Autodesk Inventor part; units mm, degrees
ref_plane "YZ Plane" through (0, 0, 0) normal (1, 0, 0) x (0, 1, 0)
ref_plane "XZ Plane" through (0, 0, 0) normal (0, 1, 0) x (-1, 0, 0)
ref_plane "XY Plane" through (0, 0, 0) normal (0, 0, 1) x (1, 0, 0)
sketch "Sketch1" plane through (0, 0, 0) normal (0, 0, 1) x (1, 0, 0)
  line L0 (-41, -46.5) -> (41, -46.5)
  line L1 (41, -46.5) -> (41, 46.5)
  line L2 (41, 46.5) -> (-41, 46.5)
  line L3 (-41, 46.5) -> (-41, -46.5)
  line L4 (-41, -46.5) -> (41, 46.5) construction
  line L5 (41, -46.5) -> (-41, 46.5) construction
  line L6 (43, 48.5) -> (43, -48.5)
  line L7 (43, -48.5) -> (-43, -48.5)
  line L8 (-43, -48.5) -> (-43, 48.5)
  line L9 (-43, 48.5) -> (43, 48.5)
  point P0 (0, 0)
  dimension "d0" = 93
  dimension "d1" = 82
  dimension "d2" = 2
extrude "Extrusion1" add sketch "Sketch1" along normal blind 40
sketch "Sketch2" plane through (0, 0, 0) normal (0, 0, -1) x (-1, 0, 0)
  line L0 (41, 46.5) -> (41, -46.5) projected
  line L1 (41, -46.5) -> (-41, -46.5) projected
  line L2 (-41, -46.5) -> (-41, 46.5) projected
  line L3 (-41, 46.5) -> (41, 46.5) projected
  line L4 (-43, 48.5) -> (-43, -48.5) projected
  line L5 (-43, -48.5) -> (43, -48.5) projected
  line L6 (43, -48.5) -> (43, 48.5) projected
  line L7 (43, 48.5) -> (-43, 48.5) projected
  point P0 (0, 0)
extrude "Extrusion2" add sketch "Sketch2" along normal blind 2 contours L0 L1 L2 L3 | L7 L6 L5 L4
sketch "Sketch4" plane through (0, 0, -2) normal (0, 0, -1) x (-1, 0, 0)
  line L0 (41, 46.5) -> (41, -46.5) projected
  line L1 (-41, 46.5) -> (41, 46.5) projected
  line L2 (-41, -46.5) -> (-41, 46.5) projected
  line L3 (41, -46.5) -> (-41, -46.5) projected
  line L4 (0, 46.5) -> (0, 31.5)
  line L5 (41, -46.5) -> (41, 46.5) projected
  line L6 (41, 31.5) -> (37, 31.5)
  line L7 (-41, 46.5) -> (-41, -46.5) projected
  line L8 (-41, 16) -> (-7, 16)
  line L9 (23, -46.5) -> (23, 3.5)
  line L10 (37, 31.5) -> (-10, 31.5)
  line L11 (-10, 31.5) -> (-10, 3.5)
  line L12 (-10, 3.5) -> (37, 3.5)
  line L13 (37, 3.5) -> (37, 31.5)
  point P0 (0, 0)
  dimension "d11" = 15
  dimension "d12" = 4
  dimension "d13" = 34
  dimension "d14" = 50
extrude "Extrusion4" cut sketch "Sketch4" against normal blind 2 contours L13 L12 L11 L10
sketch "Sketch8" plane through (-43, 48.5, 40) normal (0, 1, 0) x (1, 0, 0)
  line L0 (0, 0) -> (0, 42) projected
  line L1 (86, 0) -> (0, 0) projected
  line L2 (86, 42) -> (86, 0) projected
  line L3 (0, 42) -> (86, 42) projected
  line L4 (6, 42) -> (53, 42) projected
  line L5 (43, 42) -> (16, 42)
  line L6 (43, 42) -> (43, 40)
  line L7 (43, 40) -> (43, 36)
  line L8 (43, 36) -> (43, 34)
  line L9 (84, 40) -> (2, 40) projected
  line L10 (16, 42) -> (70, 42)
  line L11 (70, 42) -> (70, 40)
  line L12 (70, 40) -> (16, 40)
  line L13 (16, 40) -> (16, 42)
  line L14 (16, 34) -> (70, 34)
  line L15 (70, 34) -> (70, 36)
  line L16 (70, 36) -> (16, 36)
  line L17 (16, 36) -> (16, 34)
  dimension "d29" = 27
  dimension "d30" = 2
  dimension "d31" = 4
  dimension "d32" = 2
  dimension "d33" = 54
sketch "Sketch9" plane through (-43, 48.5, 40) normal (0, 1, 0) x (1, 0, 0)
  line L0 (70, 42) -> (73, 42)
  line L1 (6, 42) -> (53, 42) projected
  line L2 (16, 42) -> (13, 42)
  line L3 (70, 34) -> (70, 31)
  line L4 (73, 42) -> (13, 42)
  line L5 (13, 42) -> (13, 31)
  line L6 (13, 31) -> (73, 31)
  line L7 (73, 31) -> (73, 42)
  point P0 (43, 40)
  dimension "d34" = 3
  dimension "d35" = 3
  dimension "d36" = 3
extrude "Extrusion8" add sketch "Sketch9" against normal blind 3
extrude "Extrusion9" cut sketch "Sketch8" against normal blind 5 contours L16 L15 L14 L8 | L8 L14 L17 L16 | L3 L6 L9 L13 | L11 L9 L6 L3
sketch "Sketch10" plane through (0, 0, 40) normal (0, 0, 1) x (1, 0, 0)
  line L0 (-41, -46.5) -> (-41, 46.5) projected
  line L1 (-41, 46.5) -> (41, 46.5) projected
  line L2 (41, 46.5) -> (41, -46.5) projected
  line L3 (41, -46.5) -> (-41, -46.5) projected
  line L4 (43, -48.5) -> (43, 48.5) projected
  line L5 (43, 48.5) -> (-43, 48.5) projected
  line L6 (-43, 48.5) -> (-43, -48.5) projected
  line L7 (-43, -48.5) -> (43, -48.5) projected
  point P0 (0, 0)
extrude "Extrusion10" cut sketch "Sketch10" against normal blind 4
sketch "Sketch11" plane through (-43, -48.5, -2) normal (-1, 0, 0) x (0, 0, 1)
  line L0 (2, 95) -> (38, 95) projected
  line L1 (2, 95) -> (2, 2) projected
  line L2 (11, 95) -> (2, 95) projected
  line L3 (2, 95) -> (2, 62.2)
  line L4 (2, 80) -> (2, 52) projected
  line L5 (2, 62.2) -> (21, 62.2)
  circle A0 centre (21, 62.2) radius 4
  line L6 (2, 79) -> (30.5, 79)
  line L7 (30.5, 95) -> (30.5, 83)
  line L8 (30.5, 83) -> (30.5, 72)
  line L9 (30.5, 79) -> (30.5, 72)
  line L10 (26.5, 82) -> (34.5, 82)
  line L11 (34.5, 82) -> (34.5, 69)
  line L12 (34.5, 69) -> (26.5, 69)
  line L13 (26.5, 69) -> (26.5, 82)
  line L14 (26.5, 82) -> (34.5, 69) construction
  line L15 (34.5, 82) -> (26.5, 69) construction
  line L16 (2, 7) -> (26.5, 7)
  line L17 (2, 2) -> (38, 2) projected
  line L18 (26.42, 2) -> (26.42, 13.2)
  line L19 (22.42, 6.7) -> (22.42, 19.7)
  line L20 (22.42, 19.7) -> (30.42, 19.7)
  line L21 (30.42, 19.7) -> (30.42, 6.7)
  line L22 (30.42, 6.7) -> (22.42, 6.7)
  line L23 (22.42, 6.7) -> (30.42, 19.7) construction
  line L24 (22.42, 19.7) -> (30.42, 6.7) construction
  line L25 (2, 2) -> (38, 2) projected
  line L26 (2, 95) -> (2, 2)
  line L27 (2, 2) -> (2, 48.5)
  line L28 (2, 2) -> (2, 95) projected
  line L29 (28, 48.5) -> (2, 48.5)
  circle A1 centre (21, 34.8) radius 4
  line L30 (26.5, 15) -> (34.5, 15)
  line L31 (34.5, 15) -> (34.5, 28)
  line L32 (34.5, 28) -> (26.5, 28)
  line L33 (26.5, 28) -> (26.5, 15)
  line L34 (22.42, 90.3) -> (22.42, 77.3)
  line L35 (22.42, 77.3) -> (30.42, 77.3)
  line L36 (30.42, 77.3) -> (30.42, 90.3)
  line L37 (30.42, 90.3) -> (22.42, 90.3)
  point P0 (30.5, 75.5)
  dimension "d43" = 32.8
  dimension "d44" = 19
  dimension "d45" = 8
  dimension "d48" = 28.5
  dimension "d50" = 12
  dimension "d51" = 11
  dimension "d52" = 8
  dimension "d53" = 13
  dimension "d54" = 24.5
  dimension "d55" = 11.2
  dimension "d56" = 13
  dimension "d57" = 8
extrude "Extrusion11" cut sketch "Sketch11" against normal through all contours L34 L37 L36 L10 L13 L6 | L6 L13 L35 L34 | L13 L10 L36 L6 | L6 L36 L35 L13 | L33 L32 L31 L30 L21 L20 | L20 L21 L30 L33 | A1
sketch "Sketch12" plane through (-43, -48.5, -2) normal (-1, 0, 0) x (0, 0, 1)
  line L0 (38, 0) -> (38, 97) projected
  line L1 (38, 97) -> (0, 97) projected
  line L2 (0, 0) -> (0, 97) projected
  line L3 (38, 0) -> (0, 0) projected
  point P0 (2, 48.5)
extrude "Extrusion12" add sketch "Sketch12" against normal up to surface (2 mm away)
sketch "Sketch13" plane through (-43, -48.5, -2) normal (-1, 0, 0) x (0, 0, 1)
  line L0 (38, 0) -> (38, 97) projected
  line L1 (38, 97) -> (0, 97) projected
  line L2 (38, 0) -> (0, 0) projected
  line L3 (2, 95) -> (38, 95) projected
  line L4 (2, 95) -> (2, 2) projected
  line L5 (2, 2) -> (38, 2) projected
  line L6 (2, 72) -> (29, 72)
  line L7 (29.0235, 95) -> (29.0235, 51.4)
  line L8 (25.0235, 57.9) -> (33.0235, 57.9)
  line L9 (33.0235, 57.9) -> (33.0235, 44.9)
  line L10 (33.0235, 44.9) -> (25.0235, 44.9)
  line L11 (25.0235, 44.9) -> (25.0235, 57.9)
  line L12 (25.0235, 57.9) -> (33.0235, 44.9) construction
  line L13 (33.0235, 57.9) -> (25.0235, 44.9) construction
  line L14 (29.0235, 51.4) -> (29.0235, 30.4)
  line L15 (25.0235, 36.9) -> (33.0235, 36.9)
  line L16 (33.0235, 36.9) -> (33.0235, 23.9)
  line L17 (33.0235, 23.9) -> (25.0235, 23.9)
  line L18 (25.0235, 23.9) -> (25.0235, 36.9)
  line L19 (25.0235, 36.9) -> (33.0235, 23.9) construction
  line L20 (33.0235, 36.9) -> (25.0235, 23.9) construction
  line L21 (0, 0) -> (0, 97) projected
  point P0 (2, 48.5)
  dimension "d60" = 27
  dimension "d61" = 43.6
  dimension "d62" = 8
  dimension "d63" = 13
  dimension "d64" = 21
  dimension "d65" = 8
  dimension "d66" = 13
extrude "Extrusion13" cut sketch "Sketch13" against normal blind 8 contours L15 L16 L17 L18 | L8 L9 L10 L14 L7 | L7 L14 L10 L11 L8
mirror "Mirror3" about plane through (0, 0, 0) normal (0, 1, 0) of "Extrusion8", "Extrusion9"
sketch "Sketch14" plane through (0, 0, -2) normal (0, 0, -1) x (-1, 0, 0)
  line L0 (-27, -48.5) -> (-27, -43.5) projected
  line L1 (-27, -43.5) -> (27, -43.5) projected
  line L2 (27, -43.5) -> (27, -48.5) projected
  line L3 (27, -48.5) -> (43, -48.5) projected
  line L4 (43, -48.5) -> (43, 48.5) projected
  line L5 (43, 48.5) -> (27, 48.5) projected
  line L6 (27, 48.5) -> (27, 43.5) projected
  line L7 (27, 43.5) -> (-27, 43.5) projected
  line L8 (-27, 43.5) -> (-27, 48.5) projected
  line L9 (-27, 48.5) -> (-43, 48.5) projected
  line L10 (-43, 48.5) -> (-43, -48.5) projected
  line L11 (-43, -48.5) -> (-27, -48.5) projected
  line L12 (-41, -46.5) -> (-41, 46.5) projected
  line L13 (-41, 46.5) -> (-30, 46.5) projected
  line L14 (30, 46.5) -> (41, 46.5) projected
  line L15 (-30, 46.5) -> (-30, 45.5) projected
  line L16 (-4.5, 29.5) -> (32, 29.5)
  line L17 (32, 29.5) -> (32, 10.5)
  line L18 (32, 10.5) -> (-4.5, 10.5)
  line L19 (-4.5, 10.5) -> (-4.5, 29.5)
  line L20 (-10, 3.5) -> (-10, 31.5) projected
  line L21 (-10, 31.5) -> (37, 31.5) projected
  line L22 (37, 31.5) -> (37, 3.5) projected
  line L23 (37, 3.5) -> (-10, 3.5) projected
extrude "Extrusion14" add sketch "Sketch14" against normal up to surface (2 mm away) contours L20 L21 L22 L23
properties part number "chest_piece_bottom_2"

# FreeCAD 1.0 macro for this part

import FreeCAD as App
import Part
import Sketcher


def add_polygon(sketch, points):
    """Adds a closed chain of lines whose ends are joined by coincident constraints."""
    first, n = sketch.GeometryCount, len(points)
    for a, b in zip(points, points[1:] + points[:1]):
        sketch.addGeometry(Part.LineSegment(App.Vector(*a, 0), App.Vector(*b, 0)), False)
    for i in range(n):
        sketch.addConstraint(Sketcher.Constraint("Coincident", first + i, 2, first + (i + 1) % n, 1))

doc = App.newDocument("Part")
params = doc.addObject("Spreadsheet::Sheet", "Params")
for row, (alias, value) in enumerate([
    ("sketch1_width", "82 mm"),
    ("sketch1_height", "93 mm"),
    ("pad1_length", "40 mm"),
    ("sketch2_width", "86 mm"),
    ("sketch2_height", "97 mm"),
    ("pad2_length", "2 mm"),
    ("sketch3_width", "47 mm"),
    ("sketch3_height", "28 mm"),
    ("pocket1_length", "2 mm"),
    ("sketch4_width", "60 mm"),
    ("sketch4_height", "11 mm"),
    ("pad3_length", "3 mm"),
    ("sketch5_width", "54 mm"),
    ("sketch5_height", "2 mm"),
    ("pocket2_length", "5 mm"),
    ("sketch6_width", "86 mm"),
    ("sketch6_width2", "82 mm"),
    ("sketch6_height", "97 mm"),
    ("sketch6_height2", "93 mm"),
    ("pocket3_length", "4 mm"),
    ("sketch7_diameter", "8 mm"),
    ("sketch7_width", "13 mm"),
    ("sketch7_height", "8 mm"),
    ("sketch8_width", "97 mm"),
    ("sketch8_height", "38 mm"),
    ("pad4_length", "2 mm"),
    ("sketch9_width", "13 mm"),
    ("sketch9_height", "8 mm"),
    ("pocket5_length", "8 mm"),
    ("sketch10_width", "47 mm"),
    ("sketch10_height", "28 mm"),
    ("sketch10_height2", "19 mm"),
    ("sketch10_width2", "36.5 mm"),
    ("pad5_length", "2 mm"),
], start=1):
    params.set(f"A{row}", alias)
    params.set(f"B{row}", "=" + value)
    params.setAlias(f"B{row}", alias)

body = doc.addObject("PartDesign::Body", "Body")

# Sketch on XY plane
sketch1 = body.newObject("Sketcher::SketchObject", "Sketch")
sketch1.AttachmentSupport = (doc.getObject("XY_Plane"), [""])
sketch1.MapMode = "FlatFace"
add_polygon(sketch1, [(43, -48), (43, 48), (-43, 48), (-43, -48)])  # lines 0-3
add_polygon(sketch1, [(41, -46), (-41, -46), (-41, 46), (41, 46)])  # lines 4-7
sketch1.addConstraint(Sketcher.Constraint("Vertical", 0))
sketch1.addConstraint(Sketcher.Constraint("Horizontal", 1))
sketch1.addConstraint(Sketcher.Constraint("Vertical", 2))
sketch1.addConstraint(Sketcher.Constraint("Horizontal", 3))
sketch1.addConstraint(Sketcher.Constraint("Horizontal", 4))
sketch1.addConstraint(Sketcher.Constraint("Vertical", 5))
sketch1.addConstraint(Sketcher.Constraint("Horizontal", 6))
sketch1.addConstraint(Sketcher.Constraint("Vertical", 7))
sketch1.addConstraint(Sketcher.Constraint("Symmetric", 0, 2, 2, 2, -1, 1))
sketch1.addConstraint(Sketcher.Constraint("Symmetric", 4, 2, 6, 2, -1, 1))
sketch1.addConstraint(Sketcher.Constraint("DistanceX", 4, 2, 4, 1, 82.0))
sketch1.addConstraint(Sketcher.Constraint("DistanceY", 5, 1, 5, 2, 93.0))
sketch1.addConstraint(Sketcher.Constraint("DistanceX", 2, 2, 4, 2, 2.0))
sketch1.addConstraint(Sketcher.Constraint("DistanceY", 2, 2, 4, 2, 2.0))
sketch1.setExpression("Constraints[18]", "Params.sketch1_width")
sketch1.setExpression("Constraints[19]", "Params.sketch1_height")
pad1 = body.newObject("PartDesign::Pad", "Pad")
pad1.Profile = sketch1
pad1.setExpression("Length", "Params.pad1_length")

# Sketch on XY plane
sketch2 = body.newObject("Sketcher::SketchObject", "Sketch001")
sketch2.AttachmentSupport = (doc.getObject("XY_Plane"), [""])
sketch2.MapMode = "FlatFace"
add_polygon(sketch2, [(-43, 48), (43, 48), (43, -48), (-43, -48)])  # lines 0-3
sketch2.addConstraint(Sketcher.Constraint("Horizontal", 0))
sketch2.addConstraint(Sketcher.Constraint("Vertical", 1))
sketch2.addConstraint(Sketcher.Constraint("Horizontal", 2))
sketch2.addConstraint(Sketcher.Constraint("Vertical", 3))
sketch2.addConstraint(Sketcher.Constraint("Symmetric", 0, 2, 2, 2, -1, 1))
sketch2.addConstraint(Sketcher.Constraint("DistanceX", 0, 1, 0, 2, 86.0))
sketch2.addConstraint(Sketcher.Constraint("DistanceY", 1, 2, 1, 1, 97.0))
sketch2.setExpression("Constraints[9]", "Params.sketch2_width")
sketch2.setExpression("Constraints[10]", "Params.sketch2_height")
pad2 = body.newObject("PartDesign::Pad", "Pad001")
pad2.Profile = sketch2
pad2.setExpression("Length", "Params.pad2_length")
pad2.Reversed = True

# Sketch on XY plane
sketch3 = body.newObject("Sketcher::SketchObject", "Sketch002")
sketch3.AttachmentSupport = (doc.getObject("XY_Plane"), [""])
sketch3.MapMode = "FlatFace"
sketch3.AttachmentOffset = App.Placement(App.Vector(0, 0, -2), App.Rotation())
add_polygon(sketch3, [(-37, 4), (-37, 32), (10, 32), (10, 4)])  # lines 0-3
sketch3.addConstraint(Sketcher.Constraint("Vertical", 0))
sketch3.addConstraint(Sketcher.Constraint("Horizontal", 1))
sketch3.addConstraint(Sketcher.Constraint("Vertical", 2))
sketch3.addConstraint(Sketcher.Constraint("Horizontal", 3))
sketch3.addConstraint(Sketcher.Constraint("DistanceX", 1, 1, 1, 2, 47.0))
sketch3.addConstraint(Sketcher.Constraint("DistanceY", 0, 1, 0, 2, 28.0))
sketch3.addConstraint(Sketcher.Constraint("DistanceX", 0, 2, -1, 1, 37.0))
sketch3.addConstraint(Sketcher.Constraint("DistanceY", -1, 1, 0, 2, 31.5))
sketch3.setExpression("Constraints[8]", "Params.sketch3_width")
sketch3.setExpression("Constraints[9]", "Params.sketch3_height")
pocket1 = body.newObject("PartDesign::Pocket", "Pocket")
pocket1.Profile = sketch3
pocket1.setExpression("Length", "Params.pocket1_length")
pocket1.Reversed = True

# Sketch on XZ plane
sketch4 = body.newObject("Sketcher::SketchObject", "Sketch003")
sketch4.AttachmentSupport = (doc.getObject("XZ_Plane"), [""])
sketch4.MapMode = "FlatFace"
sketch4.AttachmentOffset = App.Placement(App.Vector(0, 0, -48.5), App.Rotation())
add_polygon(sketch4, [(30, -2), (-30, -2), (-30, 9), (30, 9)])  # lines 0-3
sketch4.addConstraint(Sketcher.Constraint("Horizontal", 0))
sketch4.addConstraint(Sketcher.Constraint("Vertical", 1))
sketch4.addConstraint(Sketcher.Constraint("Horizontal", 2))
sketch4.addConstraint(Sketcher.Constraint("Vertical", 3))
sketch4.addConstraint(Sketcher.Constraint("DistanceX", 0, 2, 0, 1, 60.0))
sketch4.addConstraint(Sketcher.Constraint("DistanceY", 1, 1, 1, 2, 11.0))
sketch4.addConstraint(Sketcher.Constraint("DistanceX", 0, 2, -1, 1, 30.0))
sketch4.addConstraint(Sketcher.Constraint("DistanceY", 0, 2, -1, 1, 2.0))
sketch4.setExpression("Constraints[8]", "Params.sketch4_width")
sketch4.setExpression("Constraints[9]", "Params.sketch4_height")
pad3 = body.newObject("PartDesign::Pad", "Pad002")
pad3.Profile = sketch4
pad3.setExpression("Length", "Params.pad3_length")

# Sketch on XZ plane
sketch5 = body.newObject("Sketcher::SketchObject", "Sketch004")
sketch5.AttachmentSupport = (doc.getObject("XZ_Plane"), [""])
sketch5.MapMode = "FlatFace"
sketch5.AttachmentOffset = App.Placement(App.Vector(0, 0, -48.5), App.Rotation())
add_polygon(sketch5, [(27, 4), (-27, 4), (-27, 6), (27, 6)])  # lines 0-3
add_polygon(sketch5, [(-27, -2), (-27, 0), (27, 0), (27, -2)])  # lines 4-7
sketch5.addConstraint(Sketcher.Constraint("Horizontal", 0))
sketch5.addConstraint(Sketcher.Constraint("Vertical", 1))
sketch5.addConstraint(Sketcher.Constraint("Horizontal", 2))
sketch5.addConstraint(Sketcher.Constraint("Vertical", 3))
sketch5.addConstraint(Sketcher.Constraint("Vertical", 4))
sketch5.addConstraint(Sketcher.Constraint("Horizontal", 5))
sketch5.addConstraint(Sketcher.Constraint("Vertical", 6))
sketch5.addConstraint(Sketcher.Constraint("Horizontal", 7))
sketch5.addConstraint(Sketcher.Constraint("Symmetric", 4, 2, 5, 2, -1, 1))
sketch5.addConstraint(Sketcher.Constraint("Vertical", 1, 2, 4, 2))
sketch5.addConstraint(Sketcher.Constraint("Vertical", 3, 2, 5, 2))
sketch5.addConstraint(Sketcher.Constraint("Equal", 3, 4))
sketch5.addConstraint(Sketcher.Constraint("DistanceX", 0, 2, 0, 1, 54.0))
sketch5.addConstraint(Sketcher.Constraint("DistanceY", 1, 1, 1, 2, 2.0))
sketch5.addConstraint(Sketcher.Constraint("DistanceY", -1, 1, 0, 2, 4.0))
sketch5.setExpression("Constraints[20]", "Params.sketch5_width")
sketch5.setExpression("Constraints[21]", "Params.sketch5_height")
pocket2 = body.newObject("PartDesign::Pocket", "Pocket001")
pocket2.Profile = sketch5
pocket2.setExpression("Length", "Params.pocket2_length")
pocket2.Reversed = True

# Sketch on XY plane
sketch6 = body.newObject("Sketcher::SketchObject", "Sketch005")
sketch6.AttachmentSupport = (doc.getObject("XY_Plane"), [""])
sketch6.MapMode = "FlatFace"
sketch6.AttachmentOffset = App.Placement(App.Vector(0, 0, 40), App.Rotation())
add_polygon(sketch6, [(-43, -48), (43, -48), (43, 48), (-43, 48)])  # lines 0-3
add_polygon(sketch6, [(41, -46), (-41, -46), (-41, 46), (41, 46)])  # lines 4-7
sketch6.addConstraint(Sketcher.Constraint("Horizontal", 0))
sketch6.addConstraint(Sketcher.Constraint("Vertical", 1))
sketch6.addConstraint(Sketcher.Constraint("Horizontal", 2))
sketch6.addConstraint(Sketcher.Constraint("Vertical", 3))
sketch6.addConstraint(Sketcher.Constraint("Horizontal", 4))
sketch6.addConstraint(Sketcher.Constraint("Vertical", 5))
sketch6.addConstraint(Sketcher.Constraint("Horizontal", 6))
sketch6.addConstraint(Sketcher.Constraint("Vertical", 7))
sketch6.addConstraint(Sketcher.Constraint("Symmetric", 0, 2, 2, 2, -1, 1))
sketch6.addConstraint(Sketcher.Constraint("Symmetric", 4, 2, 6, 2, -1, 1))
sketch6.addConstraint(Sketcher.Constraint("DistanceX", 0, 1, 0, 2, 86.0))
sketch6.addConstraint(Sketcher.Constraint("DistanceX", 4, 2, 4, 1, 82.0))
sketch6.addConstraint(Sketcher.Constraint("DistanceY", 1, 1, 1, 2, 97.0))
sketch6.addConstraint(Sketcher.Constraint("DistanceY", 5, 1, 5, 2, 93.0))
sketch6.setExpression("Constraints[18]", "Params.sketch6_width")
sketch6.setExpression("Constraints[19]", "Params.sketch6_width2")
sketch6.setExpression("Constraints[20]", "Params.sketch6_height")
sketch6.setExpression("Constraints[21]", "Params.sketch6_height2")
pocket3 = body.newObject("PartDesign::Pocket", "Pocket002")
pocket3.Profile = sketch6
pocket3.setExpression("Length", "Params.pocket3_length")

# Sketch on YZ plane
sketch7 = body.newObject("Sketcher::SketchObject", "Sketch006")
sketch7.AttachmentSupport = (doc.getObject("YZ_Plane"), [""])
sketch7.MapMode = "FlatFace"
sketch7.AttachmentOffset = App.Placement(App.Vector(0, 0, -43), App.Rotation())
add_polygon(sketch7, [(41.8, 20.4), (28.8, 20.4), (28.8, 28.4), (41.8, 28.4)])  # lines 0-3
add_polygon(sketch7, [(-20.5, 24.5), (-33.5, 24.5), (-33.5, 32.5), (-20.5, 32.5)])  # lines 4-7
sketch7.addGeometry(Part.Circle(App.Vector(-13.7, 19, 0), App.Vector(0, 0, 1), 4), False)  # 8
sketch7.addConstraint(Sketcher.Constraint("Horizontal", 0))
sketch7.addConstraint(Sketcher.Constraint("Vertical", 1))
sketch7.addConstraint(Sketcher.Constraint("Horizontal", 2))
sketch7.addConstraint(Sketcher.Constraint("Vertical", 3))
sketch7.addConstraint(Sketcher.Constraint("Horizontal", 4))
sketch7.addConstraint(Sketcher.Constraint("Vertical", 5))
sketch7.addConstraint(Sketcher.Constraint("Horizontal", 6))
sketch7.addConstraint(Sketcher.Constraint("Vertical", 7))
sketch7.addConstraint(Sketcher.Constraint("Equal", 2, 4))
sketch7.addConstraint(Sketcher.Constraint("Equal", 3, 5))
sketch7.addConstraint(Sketcher.Constraint("Diameter", 8, 8.0))
sketch7.addConstraint(Sketcher.Constraint("DistanceX", 0, 2, 0, 1, 13.0))
sketch7.addConstraint(Sketcher.Constraint("DistanceY", 1, 1, 1, 2, 8.0))
sketch7.addConstraint(Sketcher.Constraint("DistanceY", -1, 1, 8, 3, 19.0))
sketch7.addConstraint(Sketcher.Constraint("DistanceY", -1, 1, 4, 2, 24.5))
sketch7.addConstraint(Sketcher.Constraint("DistanceX", 8, 3, -1, 1, 13.7))
sketch7.addConstraint(Sketcher.Constraint("DistanceX", -1, 1, 0, 2, 28.8))
sketch7.addConstraint(Sketcher.Constraint("DistanceX", 4, 2, -1, 1, 33.5))
sketch7.addConstraint(Sketcher.Constraint("DistanceY", -1, 1, 0, 2, 20.42))
sketch7.setExpression("Constraints[18]", "Params.sketch7_diameter")
sketch7.setExpression("Constraints[19]", "Params.sketch7_width")
sketch7.setExpression("Constraints[20]", "Params.sketch7_height")
pocket4 = body.newObject("PartDesign::Pocket", "Pocket003")
pocket4.Profile = sketch7
pocket4.Type = "ThroughAll"
pocket4.Reversed = True

# Sketch on YZ plane
sketch8 = body.newObject("Sketcher::SketchObject", "Sketch007")
sketch8.AttachmentSupport = (doc.getObject("YZ_Plane"), [""])
sketch8.MapMode = "FlatFace"
sketch8.AttachmentOffset = App.Placement(App.Vector(0, 0, -43), App.Rotation())
add_polygon(sketch8, [(-48, -2), (-48, 36), (48, 36), (48, -2)])  # lines 0-3
sketch8.addConstraint(Sketcher.Constraint("Vertical", 0))
sketch8.addConstraint(Sketcher.Constraint("Horizontal", 1))
sketch8.addConstraint(Sketcher.Constraint("Vertical", 2))
sketch8.addConstraint(Sketcher.Constraint("Horizontal", 3))
sketch8.addConstraint(Sketcher.Constraint("DistanceX", 1, 1, 1, 2, 97.0))
sketch8.addConstraint(Sketcher.Constraint("DistanceY", 0, 1, 0, 2, 38.0))
sketch8.addConstraint(Sketcher.Constraint("DistanceY", -1, 1, 0, 2, 36.0))
sketch8.addConstraint(Sketcher.Constraint("DistanceX", 0, 2, -1, 1, 48.5))
sketch8.setExpression("Constraints[8]", "Params.sketch8_width")
sketch8.setExpression("Constraints[9]", "Params.sketch8_height")
pad4 = body.newObject("PartDesign::Pad", "Pad003")
pad4.Profile = sketch8
pad4.setExpression("Length", "Params.pad4_length")

# Sketch on YZ plane
sketch9 = body.newObject("Sketcher::SketchObject", "Sketch008")
sketch9.AttachmentSupport = (doc.getObject("YZ_Plane"), [""])
sketch9.MapMode = "FlatFace"
sketch9.AttachmentOffset = App.Placement(App.Vector(0, 0, -43), App.Rotation())
add_polygon(sketch9, [(-12, 31), (-12, 23), (-25, 23), (-25, 31)])  # lines 0-3
add_polygon(sketch9, [(9, 31), (9, 23), (-4, 23), (-4, 31)])  # lines 4-7
sketch9.addConstraint(Sketcher.Constraint("Vertical", 0))
sketch9.addConstraint(Sketcher.Constraint("Horizontal", 1))
sketch9.addConstraint(Sketcher.Constraint("Vertical", 2))
sketch9.addConstraint(Sketcher.Constraint("Horizontal", 3))
sketch9.addConstraint(Sketcher.Constraint("Vertical", 4))
sketch9.addConstraint(Sketcher.Constraint("Horizontal", 5))
sketch9.addConstraint(Sketcher.Constraint("Vertical", 6))
sketch9.addConstraint(Sketcher.Constraint("Horizontal", 7))
sketch9.addConstraint(Sketcher.Constraint("Horizontal", 1, 2, 4, 2))
sketch9.addConstraint(Sketcher.Constraint("Horizontal", 3, 2, 6, 2))
sketch9.addConstraint(Sketcher.Constraint("Equal", 3, 5))
sketch9.addConstraint(Sketcher.Constraint("DistanceX", 1, 2, 1, 1, 13.0))
sketch9.addConstraint(Sketcher.Constraint("DistanceY", 0, 2, 0, 1, 8.0))
sketch9.addConstraint(Sketcher.Constraint("DistanceX", 0, 2, 4, 2, 21.0))
sketch9.addConstraint(Sketcher.Constraint("DistanceX", 0, 2, -1, 1, 11.6))
sketch9.addConstraint(Sketcher.Constraint("DistanceY", -1, 1, 0, 2, 23.0235))
sketch9.setExpression("Constraints[19]", "Params.sketch9_width")
sketch9.setExpression("Constraints[20]", "Params.sketch9_height")
pocket5 = body.newObject("PartDesign::Pocket", "Pocket004")
pocket5.Profile = sketch9
pocket5.setExpression("Length", "Params.pocket5_length")
pocket5.Reversed = True
doc.recompute()

mirrored = body.newObject("PartDesign::Mirrored", "Mirrored")
mirrored.Originals = [pad3, pocket2]
mirrored.MirrorPlane = (doc.getObject("XZ_Plane"), [""])
body.Tip = mirrored

# Sketch on XY plane
sketch10 = body.newObject("Sketcher::SketchObject", "Sketch009")
sketch10.AttachmentSupport = (doc.getObject("XY_Plane"), [""])
sketch10.MapMode = "FlatFace"
sketch10.AttachmentOffset = App.Placement(App.Vector(0, 0, -2), App.Rotation())
add_polygon(sketch10, [(10, 32), (10, 4), (-37, 4), (-37, 32)])  # lines 0-3
add_polygon(sketch10, [(4, 10), (4, 30), (-32, 30), (-32, 10)])  # lines 4-7
sketch10.addConstraint(Sketcher.Constraint("Vertical", 0))
sketch10.addConstraint(Sketcher.Constraint("Horizontal", 1))
sketch10.addConstraint(Sketcher.Constraint("Vertical", 2))
sketch10.addConstraint(Sketcher.Constraint("Horizontal", 3))
sketch10.addConstraint(Sketcher.Constraint("Vertical", 4))
sketch10.addConstraint(Sketcher.Constraint("Horizontal", 5))
sketch10.addConstraint(Sketcher.Constraint("Vertical", 6))
sketch10.addConstraint(Sketcher.Constraint("Horizontal", 7))
sketch10.addConstraint(Sketcher.Constraint("DistanceX", 1, 2, 1, 1, 47.0))
sketch10.addConstraint(Sketcher.Constraint("DistanceY", 0, 2, 0, 1, 28.0))
sketch10.addConstraint(Sketcher.Constraint("DistanceY", 4, 1, 4, 2, 19.0))
sketch10.addConstraint(Sketcher.Constraint("DistanceX", 5, 2, 5, 1, 36.5))
sketch10.addConstraint(Sketcher.Constraint("DistanceX", -1, 1, 0, 2, 10.0))
sketch10.addConstraint(Sketcher.Constraint("DistanceX", 5, 2, -1, 1, 32.0))
sketch10.addConstraint(Sketcher.Constraint("DistanceY", 4, 2, 3, 2, 2.0))
sketch10.addConstraint(Sketcher.Constraint("DistanceY", -1, 1, 0, 2, 3.5))
sketch10.setExpression("Constraints[16]", "Params.sketch10_width")
sketch10.setExpression("Constraints[17]", "Params.sketch10_height")
sketch10.setExpression("Constraints[18]", "Params.sketch10_height2")
sketch10.setExpression("Constraints[19]", "Params.sketch10_width2")
pad5 = body.newObject("PartDesign::Pad", "Pad004")
pad5.Profile = sketch10
pad5.setExpression("Length", "Params.pad5_length")

doc.recompute()
